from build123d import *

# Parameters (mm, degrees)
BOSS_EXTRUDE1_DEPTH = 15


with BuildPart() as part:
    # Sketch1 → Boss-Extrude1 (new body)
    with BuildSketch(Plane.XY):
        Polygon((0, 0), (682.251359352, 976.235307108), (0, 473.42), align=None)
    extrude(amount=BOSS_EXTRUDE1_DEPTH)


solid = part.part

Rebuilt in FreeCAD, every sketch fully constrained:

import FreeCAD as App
import Part
import Sketcher
from FreeCAD import Vector
Q = App.Units.Quantity

doc = App.newDocument("Part")
body = doc.addObject("PartDesign::Body", "Body")

# Sketch on XY plane
sketch1 = doc.addObject("Sketcher::SketchObject", "Sketch")
body.addObject(sketch1)
sketch1.AttachmentSupport = (doc.XY_Plane, [""])
sketch1.MapMode = "FlatFace"
sketch1.addGeometry([
    Part.LineSegment(Vector(0, 0, 0), Vector(682, 976, 0)),
    Part.LineSegment(Vector(682, 976, 0), Vector(0, 473, 0)),
    Part.LineSegment(Vector(0, 473, 0), Vector(0, 0, 0)),
], False)
sketch1.addConstraint([
    Sketcher.Constraint("Coincident", 0, 2, 1, 1),
    Sketcher.Constraint("Coincident", 1, 2, 2, 1),
    Sketcher.Constraint("Coincident", 2, 2, 0, 1),
    Sketcher.Constraint("Vertical", 2),
    Sketcher.Constraint("Coincident", 2, 2, -1, 1),
    Sketcher.Constraint("DistanceY", 2, 2, 2, 1, 473.42),
    Sketcher.Constraint("Angle", 1, Q("-143.61 deg")),
    Sketcher.Constraint("Distance", 1, 847.52),
])
pad1 = doc.addObject("PartDesign::Pad", "Pad")
body.addObject(pad1)
pad1.Profile = sketch1
pad1.Length = 15

doc.recompute()
